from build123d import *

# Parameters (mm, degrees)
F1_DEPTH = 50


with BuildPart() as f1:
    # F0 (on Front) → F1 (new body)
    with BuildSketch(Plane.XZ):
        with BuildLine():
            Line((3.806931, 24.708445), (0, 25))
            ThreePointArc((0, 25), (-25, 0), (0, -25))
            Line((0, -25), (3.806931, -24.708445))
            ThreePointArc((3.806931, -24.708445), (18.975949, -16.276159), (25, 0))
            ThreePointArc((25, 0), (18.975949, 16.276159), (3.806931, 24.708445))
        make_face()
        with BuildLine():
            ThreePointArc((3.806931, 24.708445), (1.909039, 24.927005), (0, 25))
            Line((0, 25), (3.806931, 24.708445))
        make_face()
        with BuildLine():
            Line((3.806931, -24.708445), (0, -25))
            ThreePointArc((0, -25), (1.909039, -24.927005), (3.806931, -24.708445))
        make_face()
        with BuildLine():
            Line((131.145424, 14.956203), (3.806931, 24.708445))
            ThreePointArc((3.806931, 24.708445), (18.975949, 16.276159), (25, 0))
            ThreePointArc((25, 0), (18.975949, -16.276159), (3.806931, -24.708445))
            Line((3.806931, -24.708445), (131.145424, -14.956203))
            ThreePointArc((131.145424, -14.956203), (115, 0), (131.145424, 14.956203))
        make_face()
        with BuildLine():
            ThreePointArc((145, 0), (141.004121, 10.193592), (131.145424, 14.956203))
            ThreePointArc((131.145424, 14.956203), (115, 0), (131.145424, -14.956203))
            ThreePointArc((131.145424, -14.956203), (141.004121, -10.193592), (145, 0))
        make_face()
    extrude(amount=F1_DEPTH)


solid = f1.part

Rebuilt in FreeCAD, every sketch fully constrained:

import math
import FreeCAD as App
import Part
import Sketcher

doc = App.newDocument("Part")
body = doc.addObject("PartDesign::Body", "Body")

# Sketch on XZ plane
sketch1 = body.newObject("Sketcher::SketchObject", "Sketch")
sketch1.AttachmentSupport = (doc.getObject("XZ_Plane"), [""])
sketch1.MapMode = "FlatFace"
sketch1.addGeometry([
    Part.ArcOfCircle(Part.Circle(App.Vector(0, 0, 0), App.Vector(0, 0, 1), 25), math.radians(90), math.radians(270)),  # 0
    Part.ArcOfCircle(Part.Circle(App.Vector(0, 0, 0), App.Vector(0, 0, 1), 25), math.radians(-90), math.radians(-81.24)),  # 1
    Part.LineSegment(App.Vector(3.8, -24.7, 0), App.Vector(131.1, -15, 0)),  # 2
    Part.ArcOfCircle(Part.Circle(App.Vector(130, 0, 0), App.Vector(0, 0, 1), 15), math.radians(-86), math.radians(0)),  # 3
    Part.ArcOfCircle(Part.Circle(App.Vector(130, 0, 0), App.Vector(0, 0, 1), 15), math.radians(0), math.radians(86)),  # 4
    Part.LineSegment(App.Vector(131.1, 15, 0), App.Vector(3.8, 24.7, 0)),  # 5
    Part.ArcOfCircle(Part.Circle(App.Vector(0, 0, 0), App.Vector(0, 0, 1), 25), math.radians(81.24), math.radians(90)),  # 6
], False)
sketch1.addConstraint([
    Sketcher.Constraint("Tangent", 0, 2, 1, 1),
    Sketcher.Constraint("Coincident", 1, 2, 2, 1),
    Sketcher.Constraint("Tangent", 2, 2, 3, 1),
    Sketcher.Constraint("Tangent", 3, 2, 4, 1),
    Sketcher.Constraint("Tangent", 4, 2, 5, 1),
    Sketcher.Constraint("Coincident", 5, 2, 6, 1),
    Sketcher.Constraint("Tangent", 6, 2, 0, 1),
    Sketcher.Constraint("Coincident", 0, 3, -1, 1),
    Sketcher.Constraint("Equal", 3, 4),
    Sketcher.Constraint("Equal", 1, 6),
    Sketcher.Constraint("Symmetric", 2, 2, 4, 2, -1),
    Sketcher.Constraint("PointOnObject", 0, 2, -2),
    Sketcher.Constraint("PointOnObject", 3, 2, -1),
    Sketcher.Constraint("PointOnObject", 6, 2, -2),
    Sketcher.Constraint("Radius", 0, 25.0),
    Sketcher.Constraint("Radius", 3, 15.000001),
    Sketcher.Constraint("DistanceX", -1, 1, 3, 3, 129.999999),
    Sketcher.Constraint("Radius", 1, 24.999869),
    Sketcher.Constraint("DistanceX", -1, 1, 1, 2, 3.806931),
])
pad1 = body.newObject("PartDesign::Pad", "Pad")
pad1.Profile = sketch1
pad1.Length = 50

doc.recompute()
